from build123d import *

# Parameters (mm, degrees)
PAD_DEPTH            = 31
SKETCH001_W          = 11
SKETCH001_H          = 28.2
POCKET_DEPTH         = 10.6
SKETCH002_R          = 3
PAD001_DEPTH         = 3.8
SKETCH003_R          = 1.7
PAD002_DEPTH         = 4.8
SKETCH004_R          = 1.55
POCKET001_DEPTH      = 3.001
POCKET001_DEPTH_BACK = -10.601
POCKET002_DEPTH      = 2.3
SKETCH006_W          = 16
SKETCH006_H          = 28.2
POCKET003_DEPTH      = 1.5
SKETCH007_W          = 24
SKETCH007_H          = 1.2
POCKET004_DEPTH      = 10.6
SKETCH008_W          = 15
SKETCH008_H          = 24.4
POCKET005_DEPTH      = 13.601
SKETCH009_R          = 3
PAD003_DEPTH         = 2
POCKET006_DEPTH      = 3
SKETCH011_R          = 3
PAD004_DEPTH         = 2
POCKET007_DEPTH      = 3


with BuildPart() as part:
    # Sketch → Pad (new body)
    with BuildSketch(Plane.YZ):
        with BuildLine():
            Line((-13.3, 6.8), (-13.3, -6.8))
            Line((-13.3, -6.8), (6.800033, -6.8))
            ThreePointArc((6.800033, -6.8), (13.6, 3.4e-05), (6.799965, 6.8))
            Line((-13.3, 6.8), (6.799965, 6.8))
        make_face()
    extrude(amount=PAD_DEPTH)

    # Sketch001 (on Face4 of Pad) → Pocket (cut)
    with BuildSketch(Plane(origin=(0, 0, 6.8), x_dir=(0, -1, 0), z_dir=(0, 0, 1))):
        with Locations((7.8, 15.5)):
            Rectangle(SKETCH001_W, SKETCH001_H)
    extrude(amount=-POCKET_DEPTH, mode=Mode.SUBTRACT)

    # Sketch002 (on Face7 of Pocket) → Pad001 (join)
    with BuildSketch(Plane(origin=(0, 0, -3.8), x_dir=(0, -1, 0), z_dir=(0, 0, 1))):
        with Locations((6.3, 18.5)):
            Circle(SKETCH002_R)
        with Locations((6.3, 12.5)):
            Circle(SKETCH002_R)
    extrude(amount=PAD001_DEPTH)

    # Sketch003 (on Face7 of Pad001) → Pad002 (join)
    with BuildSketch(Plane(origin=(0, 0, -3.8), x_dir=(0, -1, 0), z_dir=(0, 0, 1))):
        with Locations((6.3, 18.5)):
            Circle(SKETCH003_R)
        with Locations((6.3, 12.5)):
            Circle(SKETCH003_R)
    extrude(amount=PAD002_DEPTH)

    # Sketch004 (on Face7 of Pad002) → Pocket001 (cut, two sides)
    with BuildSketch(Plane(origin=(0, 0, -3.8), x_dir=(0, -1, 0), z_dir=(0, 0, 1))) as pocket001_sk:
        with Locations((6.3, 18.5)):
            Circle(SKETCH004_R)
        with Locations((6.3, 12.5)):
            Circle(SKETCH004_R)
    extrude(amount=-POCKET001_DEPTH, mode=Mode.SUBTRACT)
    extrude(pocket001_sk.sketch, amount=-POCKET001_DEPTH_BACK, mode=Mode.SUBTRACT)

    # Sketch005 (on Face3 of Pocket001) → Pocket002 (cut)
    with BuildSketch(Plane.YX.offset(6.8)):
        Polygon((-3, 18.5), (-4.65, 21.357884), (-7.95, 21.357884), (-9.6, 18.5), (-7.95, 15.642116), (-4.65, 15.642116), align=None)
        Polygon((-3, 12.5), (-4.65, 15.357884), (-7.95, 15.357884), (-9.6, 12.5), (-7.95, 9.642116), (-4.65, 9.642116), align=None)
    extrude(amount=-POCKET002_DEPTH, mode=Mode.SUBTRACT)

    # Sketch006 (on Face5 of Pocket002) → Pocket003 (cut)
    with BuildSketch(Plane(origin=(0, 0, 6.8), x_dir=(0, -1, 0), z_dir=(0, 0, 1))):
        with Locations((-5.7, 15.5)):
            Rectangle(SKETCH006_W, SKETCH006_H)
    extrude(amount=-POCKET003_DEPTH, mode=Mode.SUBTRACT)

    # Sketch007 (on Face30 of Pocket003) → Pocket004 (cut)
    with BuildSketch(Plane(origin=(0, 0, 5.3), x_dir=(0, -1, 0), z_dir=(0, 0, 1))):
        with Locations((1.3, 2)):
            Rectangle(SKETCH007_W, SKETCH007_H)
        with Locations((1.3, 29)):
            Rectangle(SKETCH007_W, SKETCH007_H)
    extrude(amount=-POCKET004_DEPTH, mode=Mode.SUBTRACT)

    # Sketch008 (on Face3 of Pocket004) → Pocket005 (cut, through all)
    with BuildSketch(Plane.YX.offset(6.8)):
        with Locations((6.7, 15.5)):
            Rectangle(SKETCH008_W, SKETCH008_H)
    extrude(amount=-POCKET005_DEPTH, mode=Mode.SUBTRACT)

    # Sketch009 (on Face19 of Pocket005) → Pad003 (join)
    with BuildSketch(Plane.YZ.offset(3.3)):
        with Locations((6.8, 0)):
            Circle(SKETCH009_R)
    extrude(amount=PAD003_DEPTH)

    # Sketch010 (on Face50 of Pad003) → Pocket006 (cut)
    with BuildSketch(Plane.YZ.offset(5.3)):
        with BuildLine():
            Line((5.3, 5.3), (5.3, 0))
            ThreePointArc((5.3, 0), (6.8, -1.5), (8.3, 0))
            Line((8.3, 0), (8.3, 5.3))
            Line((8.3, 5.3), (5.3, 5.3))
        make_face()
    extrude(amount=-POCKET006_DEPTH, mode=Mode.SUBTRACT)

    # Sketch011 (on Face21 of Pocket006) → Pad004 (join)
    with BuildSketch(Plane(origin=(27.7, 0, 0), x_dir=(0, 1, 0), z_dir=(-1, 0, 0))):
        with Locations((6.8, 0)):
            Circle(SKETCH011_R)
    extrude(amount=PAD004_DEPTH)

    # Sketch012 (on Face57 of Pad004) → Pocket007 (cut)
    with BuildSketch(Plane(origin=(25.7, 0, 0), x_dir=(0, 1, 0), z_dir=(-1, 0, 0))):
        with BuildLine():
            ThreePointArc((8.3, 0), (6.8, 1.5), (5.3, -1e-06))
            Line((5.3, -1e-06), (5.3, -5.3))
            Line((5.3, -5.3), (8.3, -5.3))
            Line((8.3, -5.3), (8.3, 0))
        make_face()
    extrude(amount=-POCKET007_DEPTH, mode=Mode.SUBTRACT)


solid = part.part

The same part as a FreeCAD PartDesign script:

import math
import FreeCAD as App
import Part
import Sketcher
from FreeCAD import Vector
Q = App.Units.Quantity


def add_polygon(sketch, points):
    """Adds a closed chain of lines whose ends are joined by coincident constraints."""
    first, n = sketch.GeometryCount, len(points)
    for a, b in zip(points, points[1:] + points[:1]):
        sketch.addGeometry(Part.LineSegment(App.Vector(*a, 0), App.Vector(*b, 0)), False)
    for i in range(n):
        sketch.addConstraint(Sketcher.Constraint("Coincident", first + i, 2, first + (i + 1) % n, 1))

doc = App.newDocument("Part")
body = doc.addObject("PartDesign::Body", "Body")

# Sketch on YZ plane
sketch1 = body.newObject("Sketcher::SketchObject", "Sketch")
sketch1.AttachmentSupport = (doc.getObject("YZ_Plane"), [""])
sketch1.MapMode = "FlatFace"
sketch1.addGeometry(Part.LineSegment(Vector(-13, 7, 0), Vector(-13, -7, 0)), False)
sketch1.addGeometry(Part.LineSegment(Vector(-13, -7, 0), Vector(7, -7, 0)), False)
sketch1.addGeometry(Part.ArcOfCircle(Part.Circle(Vector(7, 0, 0), Vector(0, 0, 1), 7), math.radians(-90), math.radians(90)), False)
sketch1.addGeometry(Part.LineSegment(Vector(7, 7, 0), Vector(-13, 7, 0)), False)
sketch1.addConstraint(Sketcher.Constraint("Coincident", 0, 2, 1, 1))
sketch1.addConstraint(Sketcher.Constraint("Coincident", 1, 2, 2, 1))
sketch1.addConstraint(Sketcher.Constraint("Coincident", 2, 2, 3, 1))
sketch1.addConstraint(Sketcher.Constraint("Coincident", 3, 2, 0, 1))
sketch1.addConstraint(Sketcher.Constraint("Vertical", 0))
sketch1.addConstraint(Sketcher.Constraint("Horizontal", 1))
sketch1.addConstraint(Sketcher.Constraint("Horizontal", 3))
sketch1.addConstraint(Sketcher.Constraint("PointOnObject", 2, 3, -1))
sketch1.addConstraint(Sketcher.Constraint("Radius", 2, 6.8))
sketch1.addConstraint(Sketcher.Constraint("DistanceX", -1, 1, 2, 3, 6.8))
sketch1.addConstraint(Sketcher.Constraint("DistanceX", 0, 2, -1, 1, 13.3))
sketch1.addConstraint(Sketcher.Constraint("DistanceX", 1, 1, 1, 2, 20.100033))
sketch1.addConstraint(Sketcher.Constraint("DistanceX", 3, 2, 3, 1, 20.099965))
pad1 = body.newObject("PartDesign::Pad", "Pad")
pad1.Profile = sketch1
pad1.Length = 31

# Sketch on XY plane
sketch2 = body.newObject("Sketcher::SketchObject", "Sketch001")
sketch2.AttachmentSupport = (doc.getObject("XY_Plane"), [""])
sketch2.MapMode = "FlatFace"
sketch2.AttachmentOffset = App.Placement(Vector(0, 0, 6.8), App.Rotation())
add_polygon(sketch2, [(30, -2), (1, -2), (1, -13), (30, -13)])  # lines 0-3
sketch2.addConstraint(Sketcher.Constraint("Horizontal", 0))
sketch2.addConstraint(Sketcher.Constraint("Vertical", 1))
sketch2.addConstraint(Sketcher.Constraint("Horizontal", 2))
sketch2.addConstraint(Sketcher.Constraint("Vertical", 3))
sketch2.addConstraint(Sketcher.Constraint("DistanceY", 1, 2, 1, 1, 11.0))
sketch2.addConstraint(Sketcher.Constraint("DistanceX", 0, 2, 0, 1, 28.2))
sketch2.addConstraint(Sketcher.Constraint("DistanceX", -1, 1, 0, 2, 1.4))
sketch2.addConstraint(Sketcher.Constraint("DistanceY", 0, 2, -1, 1, 2.3))
pocket1 = body.newObject("PartDesign::Pocket", "Pocket")
pocket1.Profile = sketch2
pocket1.Length = 10.6

# Sketch on XY plane
sketch3 = body.newObject("Sketcher::SketchObject", "Sketch002")
sketch3.AttachmentSupport = (doc.getObject("XY_Plane"), [""])
sketch3.MapMode = "FlatFace"
sketch3.AttachmentOffset = App.Placement(Vector(0, 0, -3.8), App.Rotation())
sketch3.addGeometry(Part.Circle(Vector(18.5, -6.3, 0), Vector(0, 0, 1), 3), False)
sketch3.addGeometry(Part.Circle(Vector(12.5, -6.3, 0), Vector(0, 0, 1), 3), False)
sketch3.addConstraint(Sketcher.Constraint("Equal", 0, 1))
sketch3.addConstraint(Sketcher.Constraint("Horizontal", 0, 3, 1, 3))
sketch3.addConstraint(Sketcher.Constraint("Diameter", 0, 6.0))
sketch3.addConstraint(Sketcher.Constraint("DistanceX", 1, 3, 0, 3, 6.0))
sketch3.addConstraint(Sketcher.Constraint("DistanceX", -1, 1, 0, 3, 18.5))
sketch3.addConstraint(Sketcher.Constraint("DistanceY", 0, 3, -1, 1, 6.3))
pad2 = body.newObject("PartDesign::Pad", "Pad001")
pad2.Profile = sketch3
pad2.Length = 3.8

# Sketch on XY plane
sketch4 = body.newObject("Sketcher::SketchObject", "Sketch003")
sketch4.AttachmentSupport = (doc.getObject("XY_Plane"), [""])
sketch4.MapMode = "FlatFace"
sketch4.AttachmentOffset = App.Placement(Vector(0, 0, -3.8), App.Rotation())
sketch4.addGeometry(Part.Circle(Vector(18.5, -6.3, 0), Vector(0, 0, 1), 1.7), False)
sketch4.addGeometry(Part.Circle(Vector(12.5, -6.3, 0), Vector(0, 0, 1), 1.7), False)
sketch4.addConstraint(Sketcher.Constraint("Equal", 0, 1))
sketch4.addConstraint(Sketcher.Constraint("Horizontal", 0, 3, 1, 3))
sketch4.addConstraint(Sketcher.Constraint("Diameter", 0, 3.4))
sketch4.addConstraint(Sketcher.Constraint("DistanceX", 1, 3, 0, 3, 6.0))
sketch4.addConstraint(Sketcher.Constraint("DistanceX", -1, 1, 0, 3, 18.5))
sketch4.addConstraint(Sketcher.Constraint("DistanceY", 0, 3, -1, 1, 6.3))
pad3 = body.newObject("PartDesign::Pad", "Pad002")
pad3.Profile = sketch4
pad3.Length = 4.8

# Sketch on XY plane
sketch5 = body.newObject("Sketcher::SketchObject", "Sketch004")
sketch5.AttachmentSupport = (doc.getObject("XY_Plane"), [""])
sketch5.MapMode = "FlatFace"
sketch5.AttachmentOffset = App.Placement(Vector(0, 0, -3.8), App.Rotation())
sketch5.addGeometry(Part.Circle(Vector(18.5, -6.3, 0), Vector(0, 0, 1), 1.6), False)
sketch5.addGeometry(Part.Circle(Vector(12.5, -6.3, 0), Vector(0, 0, 1), 1.6), False)
sketch5.addConstraint(Sketcher.Constraint("Equal", 0, 1))
sketch5.addConstraint(Sketcher.Constraint("Horizontal", 0, 3, 1, 3))
sketch5.addConstraint(Sketcher.Constraint("Diameter", 0, 3.1))
sketch5.addConstraint(Sketcher.Constraint("DistanceX", 1, 3, 0, 3, 6.0))
sketch5.addConstraint(Sketcher.Constraint("DistanceX", -1, 1, 0, 3, 18.5))
sketch5.addConstraint(Sketcher.Constraint("DistanceY", 0, 3, -1, 1, 6.3))
pocket2 = body.newObject("PartDesign::Pocket", "Pocket001")
pocket2.Profile = sketch5
pocket2.Type = "ThroughAll"
pocket2.Midplane = True

# Sketch on XY plane
sketch6 = body.newObject("Sketcher::SketchObject", "Sketch005")
sketch6.AttachmentSupport = (doc.getObject("XY_Plane"), [""])
sketch6.MapMode = "FlatFace"
sketch6.AttachmentOffset = App.Placement(Vector(0, 0, -6.8), App.Rotation())
add_polygon(sketch6, [(18.5, -3), (21.4, -4.7), (21.4, -8), (18.5, -9.6), (15.6, -8), (15.6, -4.7)])  # lines 0-5
add_polygon(sketch6, [(12.5, -3), (15.4, -4.7), (15.4, -8), (12.5, -9.6), (9.6, -8), (9.6, -4.7)])  # lines 6-11
sketch6.addConstraint(Sketcher.Constraint("Vertical", 1))
sketch6.addConstraint(Sketcher.Constraint("Vertical", 4))
sketch6.addConstraint(Sketcher.Constraint("Vertical", 7))
sketch6.addConstraint(Sketcher.Constraint("Vertical", 10))
sketch6.addConstraint(Sketcher.Constraint("Parallel", 0, 3))
sketch6.addConstraint(Sketcher.Constraint("Parallel", 2, 5))
sketch6.addConstraint(Sketcher.Constraint("Parallel", 3, 6))
sketch6.addConstraint(Sketcher.Constraint("Parallel", 5, 8))
sketch6.addConstraint(Sketcher.Constraint("Parallel", 6, 9))
sketch6.addConstraint(Sketcher.Constraint("Parallel", 8, 11))
sketch6.addConstraint(Sketcher.Constraint("Horizontal", 1, 2, 3, 2))
sketch6.addConstraint(Sketcher.Constraint("Horizontal", 0, 2, 4, 2))
sketch6.addConstraint(Sketcher.Constraint("Horizontal", 4, 2, 6, 2))
sketch6.addConstraint(Sketcher.Constraint("Horizontal", 3, 2, 7, 2))
sketch6.addConstraint(Sketcher.Constraint("Horizontal", 2, 2, 8, 2))
sketch6.addConstraint(Sketcher.Constraint("Horizontal", 7, 2, 9, 2))
sketch6.addConstraint(Sketcher.Constraint("Horizontal", 6, 2, 10, 2))
sketch6.addConstraint(Sketcher.Constraint("Vertical", 2, 2, 5, 2))
sketch6.addConstraint(Sketcher.Constraint("Angle", 0, Q("-29.999999 deg")))
sketch6.addConstraint(Sketcher.Constraint("DistanceY", 1, 2, 1, 1, 3.3))
sketch6.addConstraint(Sketcher.Constraint("DistanceY", 5, 2, -1, 1, 3.0))
sketch6.addConstraint(Sketcher.Constraint("DistanceX", 6, 2, 0, 2, 6.0))
sketch6.addConstraint(Sketcher.Constraint("Distance", 0, 3.3))
sketch6.addConstraint(Sketcher.Constraint("DistanceX", -1, 1, 2, 2, 18.5))
pocket3 = body.newObject("PartDesign::Pocket", "Pocket002")
pocket3.Profile = sketch6
pocket3.Length = 2.3
pocket3.Reversed = True

# Sketch on XY plane
sketch7 = body.newObject("Sketcher::SketchObject", "Sketch006")
sketch7.AttachmentSupport = (doc.getObject("XY_Plane"), [""])
sketch7.MapMode = "FlatFace"
sketch7.AttachmentOffset = App.Placement(Vector(0, 0, 6.8), App.Rotation())
add_polygon(sketch7, [(30, 14), (1, 14), (1, -2), (30, -2)])  # lines 0-3
sketch7.addConstraint(Sketcher.Constraint("Horizontal", 0))
sketch7.addConstraint(Sketcher.Constraint("Vertical", 1))
sketch7.addConstraint(Sketcher.Constraint("Horizontal", 2))
sketch7.addConstraint(Sketcher.Constraint("Vertical", 3))
sketch7.addConstraint(Sketcher.Constraint("DistanceY", 1, 2, 1, 1, 16.0))
sketch7.addConstraint(Sketcher.Constraint("DistanceX", 0, 2, 0, 1, 28.2))
sketch7.addConstraint(Sketcher.Constraint("DistanceX", -1, 1, 0, 2, 1.4))
sketch7.addConstraint(Sketcher.Constraint("DistanceY", -1, 1, 0, 2, 13.7))
pocket4 = body.newObject("PartDesign::Pocket", "Pocket003")
pocket4.Profile = sketch7
pocket4.Length = 1.5

# Sketch on XY plane
sketch8 = body.newObject("Sketcher::SketchObject", "Sketch007")
sketch8.AttachmentSupport = (doc.getObject("XY_Plane"), [""])
sketch8.MapMode = "FlatFace"
sketch8.AttachmentOffset = App.Placement(Vector(0, 0, 5.3), App.Rotation())
add_polygon(sketch8, [(2.6, 10.7), (1.4, 10.7), (1.4, -13.3), (2.6, -13.3)])  # lines 0-3
add_polygon(sketch8, [(29.6, 10.7), (28.4, 10.7), (28.4, -13.3), (29.6, -13.3)])  # lines 4-7
sketch8.addConstraint(Sketcher.Constraint("Horizontal", 0))
sketch8.addConstraint(Sketcher.Constraint("Vertical", 1))
sketch8.addConstraint(Sketcher.Constraint("Horizontal", 2))
sketch8.addConstraint(Sketcher.Constraint("Vertical", 3))
sketch8.addConstraint(Sketcher.Constraint("Horizontal", 4))
sketch8.addConstraint(Sketcher.Constraint("Vertical", 5))
sketch8.addConstraint(Sketcher.Constraint("Horizontal", 6))
sketch8.addConstraint(Sketcher.Constraint("Vertical", 7))
sketch8.addConstraint(Sketcher.Constraint("Horizontal", 3, 2, 4, 2))
sketch8.addConstraint(Sketcher.Constraint("Horizontal", 2, 2, 5, 2))
sketch8.addConstraint(Sketcher.Constraint("Equal", 2, 4))
sketch8.addConstraint(Sketcher.Constraint("DistanceY", 1, 2, 1, 1, 24.0))
sketch8.addConstraint(Sketcher.Constraint("DistanceX", 0, 2, 0, 1, 1.2))
sketch8.addConstraint(Sketcher.Constraint("DistanceX", 0, 2, 4, 2, 27.0))
sketch8.addConstraint(Sketcher.Constraint("DistanceX", -1, 1, 0, 2, 1.4))
sketch8.addConstraint(Sketcher.Constraint("DistanceY", -1, 1, 0, 2, 10.7))
pocket5 = body.newObject("PartDesign::Pocket", "Pocket004")
pocket5.Profile = sketch8
pocket5.Length = 10.6

# Sketch on XY plane
sketch9 = body.newObject("Sketcher::SketchObject", "Sketch008")
sketch9.AttachmentSupport = (doc.getObject("XY_Plane"), [""])
sketch9.MapMode = "FlatFace"
sketch9.AttachmentOffset = App.Placement(Vector(0, 0, -6.8), App.Rotation())
add_polygon(sketch9, [(28, -1), (3, -1), (3, 14), (28, 14)])  # lines 0-3
sketch9.addConstraint(Sketcher.Constraint("Horizontal", 0))
sketch9.addConstraint(Sketcher.Constraint("Vertical", 1))
sketch9.addConstraint(Sketcher.Constraint("Horizontal", 2))
sketch9.addConstraint(Sketcher.Constraint("Vertical", 3))
sketch9.addConstraint(Sketcher.Constraint("DistanceY", 1, 1, 1, 2, 15.0))
sketch9.addConstraint(Sketcher.Constraint("DistanceX", 0, 2, 0, 1, 24.4))
sketch9.addConstraint(Sketcher.Constraint("DistanceX", -1, 1, 0, 2, 3.3))
sketch9.addConstraint(Sketcher.Constraint("DistanceY", 0, 2, -1, 1, 0.8))
pocket6 = body.newObject("PartDesign::Pocket", "Pocket005")
pocket6.Profile = sketch9
pocket6.Type = "ThroughAll"
pocket6.Reversed = True

# Sketch on YZ plane
sketch10 = body.newObject("Sketcher::SketchObject", "Sketch009")
sketch10.AttachmentSupport = (doc.getObject("YZ_Plane"), [""])
sketch10.MapMode = "FlatFace"
sketch10.AttachmentOffset = App.Placement(Vector(0, 0, 3.3), App.Rotation())
sketch10.addGeometry(Part.Circle(Vector(6.8, 0, 0), Vector(0, 0, 1), 3), False)
sketch10.addConstraint(Sketcher.Constraint("PointOnObject", 0, 3, -1))
sketch10.addConstraint(Sketcher.Constraint("Diameter", 0, 6.0))
sketch10.addConstraint(Sketcher.Constraint("DistanceX", -1, 1, 0, 3, 6.8))
pad4 = body.newObject("PartDesign::Pad", "Pad003")
pad4.Profile = sketch10
pad4.Length = 2

# Sketch on YZ plane
sketch11 = body.newObject("Sketcher::SketchObject", "Sketch010")
sketch11.AttachmentSupport = (doc.getObject("YZ_Plane"), [""])
sketch11.MapMode = "FlatFace"
sketch11.AttachmentOffset = App.Placement(Vector(0, 0, 5.3), App.Rotation())
sketch11.addGeometry(Part.LineSegment(Vector(5.3, 5.3, 0), Vector(5.3, 0, 0)), False)
sketch11.addGeometry(Part.ArcOfCircle(Part.Circle(Vector(6.8, 0, 0), Vector(0, 0, 1), 1.5), math.radians(180), math.radians(360)), False)
sketch11.addGeometry(Part.LineSegment(Vector(8.3, 0, 0), Vector(8.3, 5.3, 0)), False)
sketch11.addGeometry(Part.LineSegment(Vector(8.3, 5.3, 0), Vector(5.3, 5.3, 0)), False)
sketch11.addConstraint(Sketcher.Constraint("Tangent", 0, 2, 1, 1))
sketch11.addConstraint(Sketcher.Constraint("Tangent", 1, 2, 2, 1))
sketch11.addConstraint(Sketcher.Constraint("Coincident", 2, 2, 3, 1))
sketch11.addConstraint(Sketcher.Constraint("Coincident", 3, 2, 0, 1))
sketch11.addConstraint(Sketcher.Constraint("Vertical", 0))
sketch11.addConstraint(Sketcher.Constraint("Vertical", 2))
sketch11.addConstraint(Sketcher.Constraint("Horizontal", 3))
sketch11.addConstraint(Sketcher.Constraint("PointOnObject", 1, 3, -1))
sketch11.addConstraint(Sketcher.Constraint("Radius", 1, 1.5))
sketch11.addConstraint(Sketcher.Constraint("DistanceY", 0, 2, 0, 1, 5.3))
sketch11.addConstraint(Sketcher.Constraint("DistanceX", -1, 1, 1, 3, 6.8))
pocket7 = body.newObject("PartDesign::Pocket", "Pocket006")
pocket7.Profile = sketch11
pocket7.Length = 3

# Sketch on YZ plane
sketch12 = body.newObject("Sketcher::SketchObject", "Sketch011")
sketch12.AttachmentSupport = (doc.getObject("YZ_Plane"), [""])
sketch12.MapMode = "FlatFace"
sketch12.AttachmentOffset = App.Placement(Vector(0, 0, 27.7), App.Rotation())
sketch12.addGeometry(Part.Circle(Vector(6.8, 0, 0), Vector(0, 0, 1), 3), False)
sketch12.addConstraint(Sketcher.Constraint("PointOnObject", 0, 3, -1))
sketch12.addConstraint(Sketcher.Constraint("Diameter", 0, 6.0))
sketch12.addConstraint(Sketcher.Constraint("DistanceX", -1, 1, 0, 3, 6.8))
pad5 = body.newObject("PartDesign::Pad", "Pad004")
pad5.Profile = sketch12
pad5.Length = 2
pad5.Reversed = True

# Sketch on YZ plane
sketch13 = body.newObject("Sketcher::SketchObject", "Sketch012")
sketch13.AttachmentSupport = (doc.getObject("YZ_Plane"), [""])
sketch13.MapMode = "FlatFace"
sketch13.AttachmentOffset = App.Placement(Vector(0, 0, 25.7), App.Rotation())
sketch13.addGeometry(Part.ArcOfCircle(Part.Circle(Vector(6.8, 0, 0), Vector(0, 0, 1), 1.5), math.radians(180), math.radians(360)), False)
sketch13.addGeometry(Part.LineSegment(Vector(5.3, 0, 0), Vector(5.3, 5.3, 0)), False)
sketch13.addGeometry(Part.LineSegment(Vector(5.3, 5.3, 0), Vector(8.3, 5.3, 0)), False)
sketch13.addGeometry(Part.LineSegment(Vector(8.3, 5.3, 0), Vector(8.3, 0, 0)), False)
sketch13.addConstraint(Sketcher.Constraint("Tangent", 0, 1, 1, 1))
sketch13.addConstraint(Sketcher.Constraint("Coincident", 1, 2, 2, 1))
sketch13.addConstraint(Sketcher.Constraint("Coincident", 2, 2, 3, 1))
sketch13.addConstraint(Sketcher.Constraint("Tangent", 3, 2, 0, 2))
sketch13.addConstraint(Sketcher.Constraint("Vertical", 1))
sketch13.addConstraint(Sketcher.Constraint("Horizontal", 2))
sketch13.addConstraint(Sketcher.Constraint("Vertical", 3))
sketch13.addConstraint(Sketcher.Constraint("PointOnObject", 0, 3, -1))
sketch13.addConstraint(Sketcher.Constraint("Radius", 0, 1.5))
sketch13.addConstraint(Sketcher.Constraint("DistanceY", 1, 1, 1, 2, 5.299999))
sketch13.addConstraint(Sketcher.Constraint("DistanceX", -1, 1, 0, 3, 6.8))
pocket8 = body.newObject("PartDesign::Pocket", "Pocket007")
pocket8.Profile = sketch13
pocket8.Length = 3
pocket8.Reversed = True

doc.recompute()
